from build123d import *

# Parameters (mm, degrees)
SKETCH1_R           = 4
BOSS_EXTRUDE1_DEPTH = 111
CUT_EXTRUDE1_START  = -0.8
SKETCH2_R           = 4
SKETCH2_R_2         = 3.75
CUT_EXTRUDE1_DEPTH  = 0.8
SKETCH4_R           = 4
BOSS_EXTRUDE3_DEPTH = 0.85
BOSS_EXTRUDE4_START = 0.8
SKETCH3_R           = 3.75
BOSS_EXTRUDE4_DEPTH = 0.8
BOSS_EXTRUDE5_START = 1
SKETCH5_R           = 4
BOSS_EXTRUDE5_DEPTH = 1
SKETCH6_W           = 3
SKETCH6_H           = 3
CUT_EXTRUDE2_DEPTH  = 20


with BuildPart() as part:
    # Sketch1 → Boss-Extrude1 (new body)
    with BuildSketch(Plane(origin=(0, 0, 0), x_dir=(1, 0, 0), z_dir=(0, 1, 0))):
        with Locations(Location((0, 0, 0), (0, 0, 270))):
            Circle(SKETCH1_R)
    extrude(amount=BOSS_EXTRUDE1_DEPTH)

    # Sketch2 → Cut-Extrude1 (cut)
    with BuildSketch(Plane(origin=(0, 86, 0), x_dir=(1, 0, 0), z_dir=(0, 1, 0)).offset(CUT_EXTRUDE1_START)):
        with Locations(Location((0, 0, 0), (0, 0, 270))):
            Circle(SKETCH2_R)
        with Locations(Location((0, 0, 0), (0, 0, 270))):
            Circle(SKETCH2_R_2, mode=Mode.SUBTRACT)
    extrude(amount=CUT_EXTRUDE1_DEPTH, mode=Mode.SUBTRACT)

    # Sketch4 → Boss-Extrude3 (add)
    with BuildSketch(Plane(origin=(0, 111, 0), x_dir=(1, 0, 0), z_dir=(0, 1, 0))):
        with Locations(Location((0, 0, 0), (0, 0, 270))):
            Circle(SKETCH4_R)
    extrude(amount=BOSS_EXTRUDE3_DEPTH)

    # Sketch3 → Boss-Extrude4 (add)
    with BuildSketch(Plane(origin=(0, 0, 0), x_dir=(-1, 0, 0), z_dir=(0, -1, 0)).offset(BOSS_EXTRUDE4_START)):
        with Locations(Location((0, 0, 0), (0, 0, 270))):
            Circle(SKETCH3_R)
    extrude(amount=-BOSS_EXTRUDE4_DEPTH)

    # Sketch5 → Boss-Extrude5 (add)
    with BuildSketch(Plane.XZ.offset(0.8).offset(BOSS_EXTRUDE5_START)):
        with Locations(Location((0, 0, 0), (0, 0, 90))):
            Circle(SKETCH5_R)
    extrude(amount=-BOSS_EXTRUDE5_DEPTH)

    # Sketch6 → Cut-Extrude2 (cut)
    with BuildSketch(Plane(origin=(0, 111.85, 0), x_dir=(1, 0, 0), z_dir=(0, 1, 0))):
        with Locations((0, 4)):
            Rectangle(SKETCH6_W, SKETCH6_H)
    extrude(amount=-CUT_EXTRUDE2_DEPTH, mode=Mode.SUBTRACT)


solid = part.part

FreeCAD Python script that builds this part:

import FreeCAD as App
import Part
import Sketcher

V = App.Vector


def add_polygon(sketch, points):
    """Adds a closed chain of lines whose ends are joined by coincident constraints."""
    first, n = sketch.GeometryCount, len(points)
    for a, b in zip(points, points[1:] + points[:1]):
        sketch.addGeometry(Part.LineSegment(App.Vector(*a, 0), App.Vector(*b, 0)), False)
    for i in range(n):
        sketch.addConstraint(Sketcher.Constraint("Coincident", first + i, 2, first + (i + 1) % n, 1))

doc = App.newDocument("Part")
body = doc.addObject("PartDesign::Body", "Body")

# Sketch on XZ plane
sketch1 = doc.addObject("Sketcher::SketchObject", "Sketch")
body.addObject(sketch1)
sketch1.AttachmentSupport = (doc.XZ_Plane, [""])
sketch1.MapMode = "FlatFace"
sketch1.addGeometry(Part.Circle(V(0, 0, 0), V(0, 0, 1), 4), False)
sketch1.addConstraint(Sketcher.Constraint("Coincident", 0, 3, -1, 1))
sketch1.addConstraint(Sketcher.Constraint("Diameter", 0, 8.0))
pad1 = doc.addObject("PartDesign::Pad", "Pad")
body.addObject(pad1)
pad1.Profile = sketch1
pad1.Length = 111
pad1.Reversed = True

# Sketch on XZ plane
sketch2 = doc.addObject("Sketcher::SketchObject", "Sketch001")
body.addObject(sketch2)
sketch2.AttachmentSupport = (doc.XZ_Plane, [""])
sketch2.MapMode = "FlatFace"
sketch2.AttachmentOffset = App.Placement(V(0, 0, -85.2), App.Rotation())
sketch2.addGeometry(Part.Circle(V(0, 0, 0), V(0, 0, 1), 4), False)
sketch2.addGeometry(Part.Circle(V(0, 0, 0), V(0, 0, 1), 3.8), False)
sketch2.addConstraint(Sketcher.Constraint("Coincident", 0, 3, -1, 1))
sketch2.addConstraint(Sketcher.Constraint("Coincident", 1, 3, -1, 1))
sketch2.addConstraint(Sketcher.Constraint("Diameter", 0, 8.0))
sketch2.addConstraint(Sketcher.Constraint("Diameter", 1, 7.5))
pocket1 = doc.addObject("PartDesign::Pocket", "Pocket")
body.addObject(pocket1)
pocket1.Profile = sketch2
pocket1.Length = 0.8

# Sketch on XZ plane
sketch3 = doc.addObject("Sketcher::SketchObject", "Sketch002")
body.addObject(sketch3)
sketch3.AttachmentSupport = (doc.XZ_Plane, [""])
sketch3.MapMode = "FlatFace"
sketch3.AttachmentOffset = App.Placement(V(0, 0, -111), App.Rotation())
sketch3.addGeometry(Part.Circle(V(0, 0, 0), V(0, 0, 1), 4), False)
sketch3.addConstraint(Sketcher.Constraint("Coincident", 0, 3, -1, 1))
sketch3.addConstraint(Sketcher.Constraint("Diameter", 0, 8.0))
pad2 = doc.addObject("PartDesign::Pad", "Pad001")
body.addObject(pad2)
pad2.Profile = sketch3
pad2.Length = 0.85
pad2.Reversed = True

# Sketch on XZ plane
sketch4 = doc.addObject("Sketcher::SketchObject", "Sketch003")
body.addObject(sketch4)
sketch4.AttachmentSupport = (doc.XZ_Plane, [""])
sketch4.MapMode = "FlatFace"
sketch4.AttachmentOffset = App.Placement(V(0, 0, 0.8), App.Rotation())
sketch4.addGeometry(Part.Circle(V(0, 0, 0), V(0, 0, 1), 3.8), False)
sketch4.addConstraint(Sketcher.Constraint("Coincident", 0, 3, -1, 1))
sketch4.addConstraint(Sketcher.Constraint("Diameter", 0, 7.5))
pad3 = doc.addObject("PartDesign::Pad", "Pad002")
body.addObject(pad3)
pad3.Profile = sketch4
pad3.Length = 0.8
pad3.Reversed = True

# Sketch on XZ plane
sketch5 = doc.addObject("Sketcher::SketchObject", "Sketch004")
body.addObject(sketch5)
sketch5.AttachmentSupport = (doc.XZ_Plane, [""])
sketch5.MapMode = "FlatFace"
sketch5.AttachmentOffset = App.Placement(V(0, 0, 1.8), App.Rotation())
sketch5.addGeometry(Part.Circle(V(0, 0, 0), V(0, 0, 1), 4), False)
sketch5.addConstraint(Sketcher.Constraint("Coincident", 0, 3, -1, 1))
sketch5.addConstraint(Sketcher.Constraint("Diameter", 0, 8.0))
pad4 = doc.addObject("PartDesign::Pad", "Pad003")
body.addObject(pad4)
pad4.Profile = sketch5
pad4.Length = 1
pad4.Reversed = True

# Sketch on XZ plane
sketch6 = doc.addObject("Sketcher::SketchObject", "Sketch005")
body.addObject(sketch6)
sketch6.AttachmentSupport = (doc.XZ_Plane, [""])
sketch6.MapMode = "FlatFace"
sketch6.AttachmentOffset = App.Placement(V(0, 0, -111.85), App.Rotation())
add_polygon(sketch6, [(-1.5, -5.5), (-1.5, -2.5), (1.5, -2.5), (1.5, -5.5)])  # lines 0-3
sketch6.addConstraint(Sketcher.Constraint("Vertical", 0))
sketch6.addConstraint(Sketcher.Constraint("Horizontal", 1))
sketch6.addConstraint(Sketcher.Constraint("Vertical", 2))
sketch6.addConstraint(Sketcher.Constraint("Horizontal", 3))
sketch6.addConstraint(Sketcher.Constraint("Equal", 3, 0))
sketch6.addConstraint(Sketcher.Constraint("DistanceX", 1, 1, 1, 2, 3.0))
sketch6.addConstraint(Sketcher.Constraint("DistanceX", 0, 2, -1, 1, 1.5))
sketch6.addConstraint(Sketcher.Constraint("DistanceY", 0, 2, -1, 1, 2.5))
pocket2 = doc.addObject("PartDesign::Pocket", "Pocket001")
body.addObject(pocket2)
pocket2.Profile = sketch6
pocket2.Length = 20
pocket2.Reversed = True

doc.recompute()
